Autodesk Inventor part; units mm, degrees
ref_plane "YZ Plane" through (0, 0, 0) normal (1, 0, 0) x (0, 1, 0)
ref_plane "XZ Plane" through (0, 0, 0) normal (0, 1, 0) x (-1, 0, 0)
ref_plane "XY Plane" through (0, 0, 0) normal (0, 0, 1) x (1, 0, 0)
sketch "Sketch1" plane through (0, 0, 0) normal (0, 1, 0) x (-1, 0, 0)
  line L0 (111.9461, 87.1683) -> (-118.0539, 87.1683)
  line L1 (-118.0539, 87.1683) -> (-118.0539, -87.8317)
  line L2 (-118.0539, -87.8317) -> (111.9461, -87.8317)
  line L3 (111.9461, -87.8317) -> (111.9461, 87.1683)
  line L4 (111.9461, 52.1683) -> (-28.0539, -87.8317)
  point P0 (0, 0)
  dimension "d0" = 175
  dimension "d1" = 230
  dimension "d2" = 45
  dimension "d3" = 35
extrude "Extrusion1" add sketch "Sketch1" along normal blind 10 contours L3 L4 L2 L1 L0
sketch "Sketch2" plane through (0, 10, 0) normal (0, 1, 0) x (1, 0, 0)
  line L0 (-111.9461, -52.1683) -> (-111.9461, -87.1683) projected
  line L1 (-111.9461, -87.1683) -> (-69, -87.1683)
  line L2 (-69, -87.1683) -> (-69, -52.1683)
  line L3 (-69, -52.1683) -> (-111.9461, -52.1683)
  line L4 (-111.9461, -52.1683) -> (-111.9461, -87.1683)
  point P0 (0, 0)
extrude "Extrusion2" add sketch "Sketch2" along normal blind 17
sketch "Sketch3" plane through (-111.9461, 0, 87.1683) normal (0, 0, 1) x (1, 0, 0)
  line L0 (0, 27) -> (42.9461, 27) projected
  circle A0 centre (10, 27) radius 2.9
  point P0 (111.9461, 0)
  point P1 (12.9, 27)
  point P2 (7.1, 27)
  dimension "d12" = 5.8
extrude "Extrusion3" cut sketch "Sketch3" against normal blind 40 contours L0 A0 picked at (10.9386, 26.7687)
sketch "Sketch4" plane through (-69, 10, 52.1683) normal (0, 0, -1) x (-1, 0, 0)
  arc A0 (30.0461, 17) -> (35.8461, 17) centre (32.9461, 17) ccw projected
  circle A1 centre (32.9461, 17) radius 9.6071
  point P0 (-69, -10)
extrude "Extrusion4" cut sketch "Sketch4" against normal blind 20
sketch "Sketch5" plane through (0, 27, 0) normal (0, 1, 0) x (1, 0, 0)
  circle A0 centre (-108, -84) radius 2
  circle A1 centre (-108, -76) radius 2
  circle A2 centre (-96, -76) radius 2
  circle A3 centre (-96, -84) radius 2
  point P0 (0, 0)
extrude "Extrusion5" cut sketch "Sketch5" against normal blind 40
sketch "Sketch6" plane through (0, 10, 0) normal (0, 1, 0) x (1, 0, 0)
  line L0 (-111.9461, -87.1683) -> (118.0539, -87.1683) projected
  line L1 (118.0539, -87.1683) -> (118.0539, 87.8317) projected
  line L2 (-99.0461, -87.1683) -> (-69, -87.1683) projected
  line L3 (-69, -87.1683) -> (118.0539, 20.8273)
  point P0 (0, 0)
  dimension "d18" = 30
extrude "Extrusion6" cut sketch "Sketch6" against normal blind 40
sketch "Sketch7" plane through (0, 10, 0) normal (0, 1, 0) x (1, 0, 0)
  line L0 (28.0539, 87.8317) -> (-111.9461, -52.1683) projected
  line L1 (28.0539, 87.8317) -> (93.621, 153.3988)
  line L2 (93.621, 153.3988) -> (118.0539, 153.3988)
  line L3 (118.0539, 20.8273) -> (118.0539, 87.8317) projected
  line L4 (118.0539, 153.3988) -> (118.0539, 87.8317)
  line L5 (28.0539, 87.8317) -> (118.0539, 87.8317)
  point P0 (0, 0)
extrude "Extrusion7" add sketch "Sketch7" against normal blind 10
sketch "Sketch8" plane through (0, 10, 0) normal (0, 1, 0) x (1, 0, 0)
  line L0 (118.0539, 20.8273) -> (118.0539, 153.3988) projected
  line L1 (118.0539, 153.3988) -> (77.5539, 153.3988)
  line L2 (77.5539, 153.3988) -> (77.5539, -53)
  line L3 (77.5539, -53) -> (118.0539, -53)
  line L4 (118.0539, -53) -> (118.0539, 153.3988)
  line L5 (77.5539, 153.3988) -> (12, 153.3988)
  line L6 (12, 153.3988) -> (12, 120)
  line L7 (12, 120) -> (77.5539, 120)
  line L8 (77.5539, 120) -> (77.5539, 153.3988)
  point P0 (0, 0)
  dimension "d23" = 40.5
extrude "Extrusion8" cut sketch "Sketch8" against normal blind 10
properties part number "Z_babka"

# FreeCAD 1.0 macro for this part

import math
import FreeCAD as App
import Part
import Sketcher
Q = App.Units.Quantity

doc = App.newDocument("Part")
params = doc.addObject("Spreadsheet::Sheet", "Params")
for row, (alias, value) in enumerate([
    ("sketch1_width", "230 mm"),
    ("sketch1_height", "35 mm"),
    ("sketch1_height2", "175 mm"),
    ("sketch1_width2", "90 mm"),
    ("pad1_length", "10 mm"),
    ("sketch2_height", "35 mm"),
    ("pad2_length", "17 mm"),
    ("sketch3_radius", "2.9 mm"),
    ("pocket1_length", "40 mm"),
    ("pocket2_length", "20 mm"),
    ("sketch5_diameter", "4 mm"),
    ("pocket3_length", "40 mm"),
    ("pocket4_length", "40 mm"),
    ("sketch7_width", "90 mm"),
    ("pad3_length", "10 mm"),
    ("sketch8_width", "40.5 mm"),
    ("sketch8_height", "173 mm"),
    ("pocket5_length", "10 mm"),
], start=1):
    params.set(f"A{row}", alias)
    params.set(f"B{row}", "=" + value)
    params.setAlias(f"B{row}", alias)

body = doc.addObject("PartDesign::Body", "Body")

# Sketch on XZ plane
sketch1 = body.newObject("Sketcher::SketchObject", "Sketch")
sketch1.AttachmentSupport = (doc.getObject("XZ_Plane"), [""])
sketch1.MapMode = "FlatFace"
sketch1.addGeometry(Part.LineSegment(App.Vector(-112, 52, 0), App.Vector(-112, 87, 0)), False)
sketch1.addGeometry(Part.LineSegment(App.Vector(-112, 87, 0), App.Vector(118, 87, 0)), False)
sketch1.addGeometry(Part.LineSegment(App.Vector(118, 87, 0), App.Vector(118, -88, 0)), False)
sketch1.addGeometry(Part.LineSegment(App.Vector(118, -88, 0), App.Vector(28, -88, 0)), False)
sketch1.addGeometry(Part.LineSegment(App.Vector(28, -88, 0), App.Vector(-112, 52, 0)), False)
sketch1.addConstraint(Sketcher.Constraint("Coincident", 0, 2, 1, 1))
sketch1.addConstraint(Sketcher.Constraint("Coincident", 1, 2, 2, 1))
sketch1.addConstraint(Sketcher.Constraint("Coincident", 2, 2, 3, 1))
sketch1.addConstraint(Sketcher.Constraint("Coincident", 3, 2, 4, 1))
sketch1.addConstraint(Sketcher.Constraint("Coincident", 4, 2, 0, 1))
sketch1.addConstraint(Sketcher.Constraint("Vertical", 0))
sketch1.addConstraint(Sketcher.Constraint("Horizontal", 1))
sketch1.addConstraint(Sketcher.Constraint("Vertical", 2))
sketch1.addConstraint(Sketcher.Constraint("Horizontal", 3))
sketch1.addConstraint(Sketcher.Constraint("DistanceX", 1, 1, 1, 2, 230.0))
sketch1.addConstraint(Sketcher.Constraint("DistanceY", 0, 1, 0, 2, 35.0))
sketch1.addConstraint(Sketcher.Constraint("DistanceY", 2, 2, 2, 1, 175.0))
sketch1.addConstraint(Sketcher.Constraint("DistanceX", 3, 2, 3, 1, 90.0))
sketch1.addConstraint(Sketcher.Constraint("DistanceX", 0, 2, -1, 1, 111.946))
sketch1.addConstraint(Sketcher.Constraint("DistanceY", -1, 1, 0, 2, 87.1683))
sketch1.setExpression("Constraints[9]", "Params.sketch1_width")
sketch1.setExpression("Constraints[10]", "Params.sketch1_height")
sketch1.setExpression("Constraints[11]", "Params.sketch1_height2")
sketch1.setExpression("Constraints[12]", "Params.sketch1_width2")
pad1 = body.newObject("PartDesign::Pad", "Pad")
pad1.Profile = sketch1
pad1.setExpression("Length", "Params.pad1_length")
pad1.Reversed = True

# Sketch on XZ plane
sketch2 = body.newObject("Sketcher::SketchObject", "Sketch001")
sketch2.AttachmentSupport = (doc.getObject("XZ_Plane"), [""])
sketch2.MapMode = "FlatFace"
sketch2.AttachmentOffset = App.Placement(App.Vector(0, 0, -10), App.Rotation())
sketch2.addGeometry(Part.LineSegment(App.Vector(-69, 52, 0), App.Vector(-112, 52, 0)), False)
sketch2.addGeometry(Part.LineSegment(App.Vector(-112, 52, 0), App.Vector(-112, 87, 0)), False)
sketch2.addGeometry(Part.LineSegment(App.Vector(-112, 87, 0), App.Vector(-69, 87, 0)), False)
sketch2.addGeometry(Part.LineSegment(App.Vector(-69, 87, 0), App.Vector(-69, 52, 0)), False)
sketch2.addConstraint(Sketcher.Constraint("Coincident", 0, 2, 1, 1))
sketch2.addConstraint(Sketcher.Constraint("Coincident", 1, 2, 2, 1))
sketch2.addConstraint(Sketcher.Constraint("Coincident", 2, 2, 3, 1))
sketch2.addConstraint(Sketcher.Constraint("Coincident", 3, 2, 0, 1))
sketch2.addConstraint(Sketcher.Constraint("Horizontal", 0))
sketch2.addConstraint(Sketcher.Constraint("Vertical", 1))
sketch2.addConstraint(Sketcher.Constraint("Horizontal", 2))
sketch2.addConstraint(Sketcher.Constraint("Vertical", 3))
sketch2.addConstraint(Sketcher.Constraint("DistanceY", 1, 1, 1, 2, 35.0))
sketch2.addConstraint(Sketcher.Constraint("DistanceX", 2, 2, -1, 1, 69.0))
sketch2.addConstraint(Sketcher.Constraint("DistanceX", 0, 2, 0, 1, 42.946))
sketch2.addConstraint(Sketcher.Constraint("DistanceY", -1, 1, 0, 2, 52.1683))
sketch2.setExpression("Constraints[8]", "Params.sketch2_height")
pad2 = body.newObject("PartDesign::Pad", "Pad001")
pad2.Profile = sketch2
pad2.setExpression("Length", "Params.pad2_length")
pad2.Reversed = True

# Sketch on XY plane
sketch3 = body.newObject("Sketcher::SketchObject", "Sketch002")
sketch3.AttachmentSupport = (doc.getObject("XY_Plane"), [""])
sketch3.MapMode = "FlatFace"
sketch3.AttachmentOffset = App.Placement(App.Vector(0, 0, 87.1683), App.Rotation())
sketch3.addGeometry(Part.LineSegment(App.Vector(-99, 27, 0), App.Vector(-104.8, 27, 0)), False)
sketch3.addGeometry(Part.ArcOfCircle(Part.Circle(App.Vector(-101.9, 27, 0), App.Vector(0, 0, 1), 2.9), math.radians(180), math.radians(360)), False)
sketch3.addConstraint(Sketcher.Constraint("Coincident", 0, 1, 1, 2))
sketch3.addConstraint(Sketcher.Constraint("Coincident", 1, 1, 0, 2))
sketch3.addConstraint(Sketcher.Constraint("Horizontal", 0))
sketch3.addConstraint(Sketcher.Constraint("Horizontal", 1, 3, 0, 1))
sketch3.addConstraint(Sketcher.Constraint("Radius", 1, 2.9))
sketch3.addConstraint(Sketcher.Constraint("DistanceY", -1, 1, 1, 3, 27.0))
sketch3.addConstraint(Sketcher.Constraint("DistanceX", 1, 3, -1, 1, 101.946))
sketch3.setExpression("Constraints[4]", "Params.sketch3_radius")
pocket1 = body.newObject("PartDesign::Pocket", "Pocket")
pocket1.Profile = sketch3
pocket1.setExpression("Length", "Params.pocket1_length")

# Sketch on XY plane
sketch4 = body.newObject("Sketcher::SketchObject", "Sketch003")
sketch4.AttachmentSupport = (doc.getObject("XY_Plane"), [""])
sketch4.MapMode = "FlatFace"
sketch4.AttachmentOffset = App.Placement(App.Vector(0, 0, 52.1683), App.Rotation())
sketch4.addGeometry(Part.Circle(App.Vector(-102, 27, 0), App.Vector(0, 0, 1), 10), False)
sketch4.addConstraint(Sketcher.Constraint("DistanceY", -1, 1, 0, 3, 27.0))
sketch4.addConstraint(Sketcher.Constraint("Diameter", 0, 19.2142))
sketch4.addConstraint(Sketcher.Constraint("DistanceX", 0, 3, -1, 1, 101.946))
pocket2 = body.newObject("PartDesign::Pocket", "Pocket001")
pocket2.Profile = sketch4
pocket2.setExpression("Length", "Params.pocket2_length")
pocket2.Reversed = True

# Sketch on XZ plane
sketch5 = body.newObject("Sketcher::SketchObject", "Sketch004")
sketch5.AttachmentSupport = (doc.getObject("XZ_Plane"), [""])
sketch5.MapMode = "FlatFace"
sketch5.AttachmentOffset = App.Placement(App.Vector(0, 0, -27), App.Rotation())
sketch5.addGeometry(Part.Circle(App.Vector(-108, 84, 0), App.Vector(0, 0, 1), 2), False)
sketch5.addGeometry(Part.Circle(App.Vector(-108, 76, 0), App.Vector(0, 0, 1), 2), False)
sketch5.addGeometry(Part.Circle(App.Vector(-96, 76, 0), App.Vector(0, 0, 1), 2), False)
sketch5.addGeometry(Part.Circle(App.Vector(-96, 84, 0), App.Vector(0, 0, 1), 2), False)
sketch5.addConstraint(Sketcher.Constraint("Equal", 0, 1))
sketch5.addConstraint(Sketcher.Constraint("Equal", 1, 2))
sketch5.addConstraint(Sketcher.Constraint("Equal", 2, 3))
sketch5.addConstraint(Sketcher.Constraint("Horizontal", 1, 3, 2, 3))
sketch5.addConstraint(Sketcher.Constraint("Horizontal", 0, 3, 3, 3))
sketch5.addConstraint(Sketcher.Constraint("Vertical", 0, 3, 1, 3))
sketch5.addConstraint(Sketcher.Constraint("Vertical", 2, 3, 3, 3))
sketch5.addConstraint(Sketcher.Constraint("Diameter", 0, 4.0))
sketch5.addConstraint(Sketcher.Constraint("DistanceX", 0, 3, -1, 1, 108.0))
sketch5.addConstraint(Sketcher.Constraint("DistanceY", -1, 1, 0, 3, 84.0))
sketch5.addConstraint(Sketcher.Constraint("DistanceY", -1, 1, 1, 3, 76.0))
sketch5.addConstraint(Sketcher.Constraint("DistanceX", 2, 3, -1, 1, 96.0))
sketch5.setExpression("Constraints[7]", "Params.sketch5_diameter")
pocket3 = body.newObject("PartDesign::Pocket", "Pocket002")
pocket3.Profile = sketch5
pocket3.setExpression("Length", "Params.pocket3_length")
pocket3.Reversed = True

# Sketch on XZ plane
sketch6 = body.newObject("Sketcher::SketchObject", "Sketch005")
sketch6.AttachmentSupport = (doc.getObject("XZ_Plane"), [""])
sketch6.MapMode = "FlatFace"
sketch6.AttachmentOffset = App.Placement(App.Vector(0, 0, -10), App.Rotation())
sketch6.addGeometry(Part.LineSegment(App.Vector(118, -21, 0), App.Vector(-69, 87, 0)), False)
sketch6.addGeometry(Part.LineSegment(App.Vector(-69, 87, 0), App.Vector(118, 87, 0)), False)
sketch6.addGeometry(Part.LineSegment(App.Vector(118, 87, 0), App.Vector(118, -21, 0)), False)
sketch6.addConstraint(Sketcher.Constraint("Coincident", 0, 2, 1, 1))
sketch6.addConstraint(Sketcher.Constraint("Coincident", 1, 2, 2, 1))
sketch6.addConstraint(Sketcher.Constraint("Coincident", 2, 2, 0, 1))
sketch6.addConstraint(Sketcher.Constraint("Horizontal", 1))
sketch6.addConstraint(Sketcher.Constraint("Vertical", 2))
sketch6.addConstraint(Sketcher.Constraint("Angle", 0, Q("150 deg")))
sketch6.addConstraint(Sketcher.Constraint("DistanceX", 0, 2, -1, 1, 69.0))
sketch6.addConstraint(Sketcher.Constraint("DistanceX", 1, 1, 1, 2, 187.054))
sketch6.addConstraint(Sketcher.Constraint("DistanceY", -1, 1, 0, 2, 87.1683))
pocket4 = body.newObject("PartDesign::Pocket", "Pocket003")
pocket4.Profile = sketch6
pocket4.setExpression("Length", "Params.pocket4_length")
pocket4.Reversed = True

# Sketch on XZ plane
sketch7 = body.newObject("Sketcher::SketchObject", "Sketch006")
sketch7.AttachmentSupport = (doc.getObject("XZ_Plane"), [""])
sketch7.MapMode = "FlatFace"
sketch7.AttachmentOffset = App.Placement(App.Vector(0, 0, -10), App.Rotation())
sketch7.addGeometry(Part.LineSegment(App.Vector(94, -153, 0), App.Vector(28, -88, 0)), False)
sketch7.addGeometry(Part.LineSegment(App.Vector(28, -88, 0), App.Vector(118, -88, 0)), False)
sketch7.addGeometry(Part.LineSegment(App.Vector(118, -88, 0), App.Vector(118, -153, 0)), False)
sketch7.addGeometry(Part.LineSegment(App.Vector(118, -153, 0), App.Vector(94, -153, 0)), False)
sketch7.addConstraint(Sketcher.Constraint("Coincident", 0, 2, 1, 1))
sketch7.addConstraint(Sketcher.Constraint("Coincident", 1, 2, 2, 1))
sketch7.addConstraint(Sketcher.Constraint("Coincident", 2, 2, 3, 1))
sketch7.addConstraint(Sketcher.Constraint("Coincident", 3, 2, 0, 1))
sketch7.addConstraint(Sketcher.Constraint("Horizontal", 1))
sketch7.addConstraint(Sketcher.Constraint("Vertical", 2))
sketch7.addConstraint(Sketcher.Constraint("Horizontal", 3))
sketch7.addConstraint(Sketcher.Constraint("DistanceX", 1, 1, 1, 2, 90.0))
sketch7.addConstraint(Sketcher.Constraint("Angle", 0, Q("135 deg")))
sketch7.addConstraint(Sketcher.Constraint("DistanceX", 3, 2, 3, 1, 24.433))
sketch7.addConstraint(Sketcher.Constraint("DistanceX", -1, 1, 0, 2, 28.054))
sketch7.addConstraint(Sketcher.Constraint("DistanceY", 0, 2, -1, 1, 87.8317))
sketch7.setExpression("Constraints[7]", "Params.sketch7_width")
pad3 = body.newObject("PartDesign::Pad", "Pad002")
pad3.Profile = sketch7
pad3.setExpression("Length", "Params.pad3_length")

# Sketch on XZ plane
sketch8 = body.newObject("Sketcher::SketchObject", "Sketch007")
sketch8.AttachmentSupport = (doc.getObject("XZ_Plane"), [""])
sketch8.MapMode = "FlatFace"
sketch8.AttachmentOffset = App.Placement(App.Vector(0, 0, -10), App.Rotation())
sketch8.addGeometry(Part.LineSegment(App.Vector(118, 53, 0), App.Vector(118, -153, 0)), False)
sketch8.addGeometry(Part.LineSegment(App.Vector(118, -153, 0), App.Vector(12, -153, 0)), False)
sketch8.addGeometry(Part.LineSegment(App.Vector(12, -153, 0), App.Vector(12, -120, 0)), False)
sketch8.addGeometry(Part.LineSegment(App.Vector(12, -120, 0), App.Vector(78, -120, 0)), False)
sketch8.addGeometry(Part.LineSegment(App.Vector(78, -120, 0), App.Vector(78, 53, 0)), False)
sketch8.addGeometry(Part.LineSegment(App.Vector(78, 53, 0), App.Vector(118, 53, 0)), False)
sketch8.addConstraint(Sketcher.Constraint("Coincident", 0, 2, 1, 1))
sketch8.addConstraint(Sketcher.Constraint("Coincident", 1, 2, 2, 1))
sketch8.addConstraint(Sketcher.Constraint("Coincident", 2, 2, 3, 1))
sketch8.addConstraint(Sketcher.Constraint("Coincident", 3, 2, 4, 1))
sketch8.addConstraint(Sketcher.Constraint("Coincident", 4, 2, 5, 1))
sketch8.addConstraint(Sketcher.Constraint("Coincident", 5, 2, 0, 1))
sketch8.addConstraint(Sketcher.Constraint("Vertical", 0))
sketch8.addConstraint(Sketcher.Constraint("Horizontal", 1))
sketch8.addConstraint(Sketcher.Constraint("Vertical", 2))
sketch8.addConstraint(Sketcher.Constraint("Horizontal", 3))
sketch8.addConstraint(Sketcher.Constraint("Vertical", 4))
sketch8.addConstraint(Sketcher.Constraint("Horizontal", 5))
sketch8.addConstraint(Sketcher.Constraint("DistanceX", 5, 1, 5, 2, 40.5))
sketch8.addConstraint(Sketcher.Constraint("DistanceY", 4, 1, 4, 2, 173.0))
sketch8.addConstraint(Sketcher.Constraint("DistanceX", -1, 1, 1, 2, 12.0))
sketch8.addConstraint(Sketcher.Constraint("DistanceY", 2, 2, -1, 1, 120.0))
sketch8.addConstraint(Sketcher.Constraint("DistanceX", 1, 2, 1, 1, 106.054))
sketch8.addConstraint(Sketcher.Constraint("DistanceY", 0, 2, 0, 1, 206.3988))
sketch8.setExpression("Constraints[12]", "Params.sketch8_width")
sketch8.setExpression("Constraints[13]", "Params.sketch8_height")
pocket5 = body.newObject("PartDesign::Pocket", "Pocket004")
pocket5.Profile = sketch8
pocket5.setExpression("Length", "Params.pocket5_length")
pocket5.Reversed = True

doc.recompute()
